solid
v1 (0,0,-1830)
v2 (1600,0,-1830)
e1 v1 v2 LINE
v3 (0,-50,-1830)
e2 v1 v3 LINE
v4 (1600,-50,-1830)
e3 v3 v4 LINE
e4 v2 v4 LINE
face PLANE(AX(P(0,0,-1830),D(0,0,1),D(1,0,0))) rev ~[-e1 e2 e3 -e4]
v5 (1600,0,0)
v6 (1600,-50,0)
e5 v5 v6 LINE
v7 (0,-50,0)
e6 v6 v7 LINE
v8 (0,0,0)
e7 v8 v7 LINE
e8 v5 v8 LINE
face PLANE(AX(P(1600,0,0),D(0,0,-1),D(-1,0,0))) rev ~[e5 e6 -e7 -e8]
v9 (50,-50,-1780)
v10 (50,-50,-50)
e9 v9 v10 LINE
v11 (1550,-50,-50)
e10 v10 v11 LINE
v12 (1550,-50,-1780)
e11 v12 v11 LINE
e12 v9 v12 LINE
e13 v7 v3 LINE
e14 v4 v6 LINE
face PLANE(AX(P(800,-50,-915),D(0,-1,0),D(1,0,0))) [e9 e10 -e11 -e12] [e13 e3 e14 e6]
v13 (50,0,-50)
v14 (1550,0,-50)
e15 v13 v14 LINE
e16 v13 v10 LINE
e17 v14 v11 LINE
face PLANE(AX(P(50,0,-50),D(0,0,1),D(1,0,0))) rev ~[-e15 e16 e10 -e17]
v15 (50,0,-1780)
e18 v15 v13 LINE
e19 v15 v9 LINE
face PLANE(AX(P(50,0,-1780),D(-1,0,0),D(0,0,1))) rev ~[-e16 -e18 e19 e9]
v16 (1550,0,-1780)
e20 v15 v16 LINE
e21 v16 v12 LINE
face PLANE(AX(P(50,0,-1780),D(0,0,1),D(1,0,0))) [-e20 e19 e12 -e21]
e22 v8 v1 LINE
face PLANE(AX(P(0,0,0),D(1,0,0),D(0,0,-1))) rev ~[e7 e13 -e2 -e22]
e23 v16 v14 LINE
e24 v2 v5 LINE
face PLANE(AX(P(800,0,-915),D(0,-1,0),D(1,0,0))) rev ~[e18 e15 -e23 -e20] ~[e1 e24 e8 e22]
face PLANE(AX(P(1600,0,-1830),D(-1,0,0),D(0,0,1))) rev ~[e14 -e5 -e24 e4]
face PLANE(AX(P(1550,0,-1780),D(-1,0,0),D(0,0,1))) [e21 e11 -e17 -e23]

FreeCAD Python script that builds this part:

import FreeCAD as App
import Part
import Sketcher
from FreeCAD import Vector
Q = App.Units.Quantity

doc = App.newDocument("Part")
body = doc.addObject("PartDesign::Body", "Body")

sketch1 = body.newObject("Sketcher::SketchObject", "Sketch")
sketch1.AttachmentSupport = (doc.getObject("XZ_Plane"), [""])
sketch1.MapMode = "FlatFace"
sketch1.addGeometry(Part.LineSegment(Vector(0, 0, 0), Vector(0, -1830, 0)), False)
sketch1.addGeometry(Part.LineSegment(Vector(0, -1830, 0), Vector(1600, -1830, 0)), False)
sketch1.addGeometry(Part.LineSegment(Vector(1600, -1830, 0), Vector(1600, 0, 0)), False)
sketch1.addGeometry(Part.LineSegment(Vector(1600, 0, 0), Vector(0, 0, 0)), False)
sketch1.addGeometry(Part.LineSegment(Vector(1550, -1780, 0), Vector(50, -1780, 0)), False)
sketch1.addGeometry(Part.LineSegment(Vector(50, -1780, 0), Vector(50, -50, 0)), False)
sketch1.addGeometry(Part.LineSegment(Vector(50, -50, 0), Vector(1550, -50, 0)), False)
sketch1.addGeometry(Part.LineSegment(Vector(1550, -50, 0), Vector(1550, -1780, 0)), False)
sketch1.addConstraint(Sketcher.Constraint("Coincident", 0, 2, 1, 1))
sketch1.addConstraint(Sketcher.Constraint("Coincident", 1, 2, 2, 1))
sketch1.addConstraint(Sketcher.Constraint("Coincident", 2, 2, 3, 1))
sketch1.addConstraint(Sketcher.Constraint("Coincident", 3, 2, 0, 1))
sketch1.addConstraint(Sketcher.Constraint("Coincident", 4, 2, 5, 1))
sketch1.addConstraint(Sketcher.Constraint("Coincident", 5, 2, 6, 1))
sketch1.addConstraint(Sketcher.Constraint("Coincident", 6, 2, 7, 1))
sketch1.addConstraint(Sketcher.Constraint("Coincident", 7, 2, 4, 1))
sketch1.addConstraint(Sketcher.Constraint("Vertical", 0))
sketch1.addConstraint(Sketcher.Constraint("Horizontal", 1))
sketch1.addConstraint(Sketcher.Constraint("Vertical", 2))
sketch1.addConstraint(Sketcher.Constraint("Horizontal", 3))
sketch1.addConstraint(Sketcher.Constraint("Horizontal", 4))
sketch1.addConstraint(Sketcher.Constraint("Vertical", 5))
sketch1.addConstraint(Sketcher.Constraint("Horizontal", 6))
sketch1.addConstraint(Sketcher.Constraint("Vertical", 7))
sketch1.addConstraint(Sketcher.Constraint("Coincident", 3, 2, -1, 1))
sketch1.addConstraint(Sketcher.Constraint("DistanceX", 1, 1, 1, 2, Q("1600 mm")))
sketch1.addConstraint(Sketcher.Constraint("DistanceX", 4, 2, 4, 1, Q("1500 mm")))
sketch1.addConstraint(Sketcher.Constraint("DistanceY", 0, 2, 0, 1, Q("1830 mm")))
sketch1.addConstraint(Sketcher.Constraint("DistanceY", 5, 1, 5, 2, Q("1730 mm")))
sketch1.addConstraint(Sketcher.Constraint("DistanceX", -1, 1, 4, 2, Q("50 mm")))
sketch1.addConstraint(Sketcher.Constraint("DistanceY", 4, 2, -1, 1, Q("1780 mm")))
pad1 = body.newObject("PartDesign::Pad", "Pad")
pad1.Profile = sketch1
pad1.Length = 50

doc.recompute()
